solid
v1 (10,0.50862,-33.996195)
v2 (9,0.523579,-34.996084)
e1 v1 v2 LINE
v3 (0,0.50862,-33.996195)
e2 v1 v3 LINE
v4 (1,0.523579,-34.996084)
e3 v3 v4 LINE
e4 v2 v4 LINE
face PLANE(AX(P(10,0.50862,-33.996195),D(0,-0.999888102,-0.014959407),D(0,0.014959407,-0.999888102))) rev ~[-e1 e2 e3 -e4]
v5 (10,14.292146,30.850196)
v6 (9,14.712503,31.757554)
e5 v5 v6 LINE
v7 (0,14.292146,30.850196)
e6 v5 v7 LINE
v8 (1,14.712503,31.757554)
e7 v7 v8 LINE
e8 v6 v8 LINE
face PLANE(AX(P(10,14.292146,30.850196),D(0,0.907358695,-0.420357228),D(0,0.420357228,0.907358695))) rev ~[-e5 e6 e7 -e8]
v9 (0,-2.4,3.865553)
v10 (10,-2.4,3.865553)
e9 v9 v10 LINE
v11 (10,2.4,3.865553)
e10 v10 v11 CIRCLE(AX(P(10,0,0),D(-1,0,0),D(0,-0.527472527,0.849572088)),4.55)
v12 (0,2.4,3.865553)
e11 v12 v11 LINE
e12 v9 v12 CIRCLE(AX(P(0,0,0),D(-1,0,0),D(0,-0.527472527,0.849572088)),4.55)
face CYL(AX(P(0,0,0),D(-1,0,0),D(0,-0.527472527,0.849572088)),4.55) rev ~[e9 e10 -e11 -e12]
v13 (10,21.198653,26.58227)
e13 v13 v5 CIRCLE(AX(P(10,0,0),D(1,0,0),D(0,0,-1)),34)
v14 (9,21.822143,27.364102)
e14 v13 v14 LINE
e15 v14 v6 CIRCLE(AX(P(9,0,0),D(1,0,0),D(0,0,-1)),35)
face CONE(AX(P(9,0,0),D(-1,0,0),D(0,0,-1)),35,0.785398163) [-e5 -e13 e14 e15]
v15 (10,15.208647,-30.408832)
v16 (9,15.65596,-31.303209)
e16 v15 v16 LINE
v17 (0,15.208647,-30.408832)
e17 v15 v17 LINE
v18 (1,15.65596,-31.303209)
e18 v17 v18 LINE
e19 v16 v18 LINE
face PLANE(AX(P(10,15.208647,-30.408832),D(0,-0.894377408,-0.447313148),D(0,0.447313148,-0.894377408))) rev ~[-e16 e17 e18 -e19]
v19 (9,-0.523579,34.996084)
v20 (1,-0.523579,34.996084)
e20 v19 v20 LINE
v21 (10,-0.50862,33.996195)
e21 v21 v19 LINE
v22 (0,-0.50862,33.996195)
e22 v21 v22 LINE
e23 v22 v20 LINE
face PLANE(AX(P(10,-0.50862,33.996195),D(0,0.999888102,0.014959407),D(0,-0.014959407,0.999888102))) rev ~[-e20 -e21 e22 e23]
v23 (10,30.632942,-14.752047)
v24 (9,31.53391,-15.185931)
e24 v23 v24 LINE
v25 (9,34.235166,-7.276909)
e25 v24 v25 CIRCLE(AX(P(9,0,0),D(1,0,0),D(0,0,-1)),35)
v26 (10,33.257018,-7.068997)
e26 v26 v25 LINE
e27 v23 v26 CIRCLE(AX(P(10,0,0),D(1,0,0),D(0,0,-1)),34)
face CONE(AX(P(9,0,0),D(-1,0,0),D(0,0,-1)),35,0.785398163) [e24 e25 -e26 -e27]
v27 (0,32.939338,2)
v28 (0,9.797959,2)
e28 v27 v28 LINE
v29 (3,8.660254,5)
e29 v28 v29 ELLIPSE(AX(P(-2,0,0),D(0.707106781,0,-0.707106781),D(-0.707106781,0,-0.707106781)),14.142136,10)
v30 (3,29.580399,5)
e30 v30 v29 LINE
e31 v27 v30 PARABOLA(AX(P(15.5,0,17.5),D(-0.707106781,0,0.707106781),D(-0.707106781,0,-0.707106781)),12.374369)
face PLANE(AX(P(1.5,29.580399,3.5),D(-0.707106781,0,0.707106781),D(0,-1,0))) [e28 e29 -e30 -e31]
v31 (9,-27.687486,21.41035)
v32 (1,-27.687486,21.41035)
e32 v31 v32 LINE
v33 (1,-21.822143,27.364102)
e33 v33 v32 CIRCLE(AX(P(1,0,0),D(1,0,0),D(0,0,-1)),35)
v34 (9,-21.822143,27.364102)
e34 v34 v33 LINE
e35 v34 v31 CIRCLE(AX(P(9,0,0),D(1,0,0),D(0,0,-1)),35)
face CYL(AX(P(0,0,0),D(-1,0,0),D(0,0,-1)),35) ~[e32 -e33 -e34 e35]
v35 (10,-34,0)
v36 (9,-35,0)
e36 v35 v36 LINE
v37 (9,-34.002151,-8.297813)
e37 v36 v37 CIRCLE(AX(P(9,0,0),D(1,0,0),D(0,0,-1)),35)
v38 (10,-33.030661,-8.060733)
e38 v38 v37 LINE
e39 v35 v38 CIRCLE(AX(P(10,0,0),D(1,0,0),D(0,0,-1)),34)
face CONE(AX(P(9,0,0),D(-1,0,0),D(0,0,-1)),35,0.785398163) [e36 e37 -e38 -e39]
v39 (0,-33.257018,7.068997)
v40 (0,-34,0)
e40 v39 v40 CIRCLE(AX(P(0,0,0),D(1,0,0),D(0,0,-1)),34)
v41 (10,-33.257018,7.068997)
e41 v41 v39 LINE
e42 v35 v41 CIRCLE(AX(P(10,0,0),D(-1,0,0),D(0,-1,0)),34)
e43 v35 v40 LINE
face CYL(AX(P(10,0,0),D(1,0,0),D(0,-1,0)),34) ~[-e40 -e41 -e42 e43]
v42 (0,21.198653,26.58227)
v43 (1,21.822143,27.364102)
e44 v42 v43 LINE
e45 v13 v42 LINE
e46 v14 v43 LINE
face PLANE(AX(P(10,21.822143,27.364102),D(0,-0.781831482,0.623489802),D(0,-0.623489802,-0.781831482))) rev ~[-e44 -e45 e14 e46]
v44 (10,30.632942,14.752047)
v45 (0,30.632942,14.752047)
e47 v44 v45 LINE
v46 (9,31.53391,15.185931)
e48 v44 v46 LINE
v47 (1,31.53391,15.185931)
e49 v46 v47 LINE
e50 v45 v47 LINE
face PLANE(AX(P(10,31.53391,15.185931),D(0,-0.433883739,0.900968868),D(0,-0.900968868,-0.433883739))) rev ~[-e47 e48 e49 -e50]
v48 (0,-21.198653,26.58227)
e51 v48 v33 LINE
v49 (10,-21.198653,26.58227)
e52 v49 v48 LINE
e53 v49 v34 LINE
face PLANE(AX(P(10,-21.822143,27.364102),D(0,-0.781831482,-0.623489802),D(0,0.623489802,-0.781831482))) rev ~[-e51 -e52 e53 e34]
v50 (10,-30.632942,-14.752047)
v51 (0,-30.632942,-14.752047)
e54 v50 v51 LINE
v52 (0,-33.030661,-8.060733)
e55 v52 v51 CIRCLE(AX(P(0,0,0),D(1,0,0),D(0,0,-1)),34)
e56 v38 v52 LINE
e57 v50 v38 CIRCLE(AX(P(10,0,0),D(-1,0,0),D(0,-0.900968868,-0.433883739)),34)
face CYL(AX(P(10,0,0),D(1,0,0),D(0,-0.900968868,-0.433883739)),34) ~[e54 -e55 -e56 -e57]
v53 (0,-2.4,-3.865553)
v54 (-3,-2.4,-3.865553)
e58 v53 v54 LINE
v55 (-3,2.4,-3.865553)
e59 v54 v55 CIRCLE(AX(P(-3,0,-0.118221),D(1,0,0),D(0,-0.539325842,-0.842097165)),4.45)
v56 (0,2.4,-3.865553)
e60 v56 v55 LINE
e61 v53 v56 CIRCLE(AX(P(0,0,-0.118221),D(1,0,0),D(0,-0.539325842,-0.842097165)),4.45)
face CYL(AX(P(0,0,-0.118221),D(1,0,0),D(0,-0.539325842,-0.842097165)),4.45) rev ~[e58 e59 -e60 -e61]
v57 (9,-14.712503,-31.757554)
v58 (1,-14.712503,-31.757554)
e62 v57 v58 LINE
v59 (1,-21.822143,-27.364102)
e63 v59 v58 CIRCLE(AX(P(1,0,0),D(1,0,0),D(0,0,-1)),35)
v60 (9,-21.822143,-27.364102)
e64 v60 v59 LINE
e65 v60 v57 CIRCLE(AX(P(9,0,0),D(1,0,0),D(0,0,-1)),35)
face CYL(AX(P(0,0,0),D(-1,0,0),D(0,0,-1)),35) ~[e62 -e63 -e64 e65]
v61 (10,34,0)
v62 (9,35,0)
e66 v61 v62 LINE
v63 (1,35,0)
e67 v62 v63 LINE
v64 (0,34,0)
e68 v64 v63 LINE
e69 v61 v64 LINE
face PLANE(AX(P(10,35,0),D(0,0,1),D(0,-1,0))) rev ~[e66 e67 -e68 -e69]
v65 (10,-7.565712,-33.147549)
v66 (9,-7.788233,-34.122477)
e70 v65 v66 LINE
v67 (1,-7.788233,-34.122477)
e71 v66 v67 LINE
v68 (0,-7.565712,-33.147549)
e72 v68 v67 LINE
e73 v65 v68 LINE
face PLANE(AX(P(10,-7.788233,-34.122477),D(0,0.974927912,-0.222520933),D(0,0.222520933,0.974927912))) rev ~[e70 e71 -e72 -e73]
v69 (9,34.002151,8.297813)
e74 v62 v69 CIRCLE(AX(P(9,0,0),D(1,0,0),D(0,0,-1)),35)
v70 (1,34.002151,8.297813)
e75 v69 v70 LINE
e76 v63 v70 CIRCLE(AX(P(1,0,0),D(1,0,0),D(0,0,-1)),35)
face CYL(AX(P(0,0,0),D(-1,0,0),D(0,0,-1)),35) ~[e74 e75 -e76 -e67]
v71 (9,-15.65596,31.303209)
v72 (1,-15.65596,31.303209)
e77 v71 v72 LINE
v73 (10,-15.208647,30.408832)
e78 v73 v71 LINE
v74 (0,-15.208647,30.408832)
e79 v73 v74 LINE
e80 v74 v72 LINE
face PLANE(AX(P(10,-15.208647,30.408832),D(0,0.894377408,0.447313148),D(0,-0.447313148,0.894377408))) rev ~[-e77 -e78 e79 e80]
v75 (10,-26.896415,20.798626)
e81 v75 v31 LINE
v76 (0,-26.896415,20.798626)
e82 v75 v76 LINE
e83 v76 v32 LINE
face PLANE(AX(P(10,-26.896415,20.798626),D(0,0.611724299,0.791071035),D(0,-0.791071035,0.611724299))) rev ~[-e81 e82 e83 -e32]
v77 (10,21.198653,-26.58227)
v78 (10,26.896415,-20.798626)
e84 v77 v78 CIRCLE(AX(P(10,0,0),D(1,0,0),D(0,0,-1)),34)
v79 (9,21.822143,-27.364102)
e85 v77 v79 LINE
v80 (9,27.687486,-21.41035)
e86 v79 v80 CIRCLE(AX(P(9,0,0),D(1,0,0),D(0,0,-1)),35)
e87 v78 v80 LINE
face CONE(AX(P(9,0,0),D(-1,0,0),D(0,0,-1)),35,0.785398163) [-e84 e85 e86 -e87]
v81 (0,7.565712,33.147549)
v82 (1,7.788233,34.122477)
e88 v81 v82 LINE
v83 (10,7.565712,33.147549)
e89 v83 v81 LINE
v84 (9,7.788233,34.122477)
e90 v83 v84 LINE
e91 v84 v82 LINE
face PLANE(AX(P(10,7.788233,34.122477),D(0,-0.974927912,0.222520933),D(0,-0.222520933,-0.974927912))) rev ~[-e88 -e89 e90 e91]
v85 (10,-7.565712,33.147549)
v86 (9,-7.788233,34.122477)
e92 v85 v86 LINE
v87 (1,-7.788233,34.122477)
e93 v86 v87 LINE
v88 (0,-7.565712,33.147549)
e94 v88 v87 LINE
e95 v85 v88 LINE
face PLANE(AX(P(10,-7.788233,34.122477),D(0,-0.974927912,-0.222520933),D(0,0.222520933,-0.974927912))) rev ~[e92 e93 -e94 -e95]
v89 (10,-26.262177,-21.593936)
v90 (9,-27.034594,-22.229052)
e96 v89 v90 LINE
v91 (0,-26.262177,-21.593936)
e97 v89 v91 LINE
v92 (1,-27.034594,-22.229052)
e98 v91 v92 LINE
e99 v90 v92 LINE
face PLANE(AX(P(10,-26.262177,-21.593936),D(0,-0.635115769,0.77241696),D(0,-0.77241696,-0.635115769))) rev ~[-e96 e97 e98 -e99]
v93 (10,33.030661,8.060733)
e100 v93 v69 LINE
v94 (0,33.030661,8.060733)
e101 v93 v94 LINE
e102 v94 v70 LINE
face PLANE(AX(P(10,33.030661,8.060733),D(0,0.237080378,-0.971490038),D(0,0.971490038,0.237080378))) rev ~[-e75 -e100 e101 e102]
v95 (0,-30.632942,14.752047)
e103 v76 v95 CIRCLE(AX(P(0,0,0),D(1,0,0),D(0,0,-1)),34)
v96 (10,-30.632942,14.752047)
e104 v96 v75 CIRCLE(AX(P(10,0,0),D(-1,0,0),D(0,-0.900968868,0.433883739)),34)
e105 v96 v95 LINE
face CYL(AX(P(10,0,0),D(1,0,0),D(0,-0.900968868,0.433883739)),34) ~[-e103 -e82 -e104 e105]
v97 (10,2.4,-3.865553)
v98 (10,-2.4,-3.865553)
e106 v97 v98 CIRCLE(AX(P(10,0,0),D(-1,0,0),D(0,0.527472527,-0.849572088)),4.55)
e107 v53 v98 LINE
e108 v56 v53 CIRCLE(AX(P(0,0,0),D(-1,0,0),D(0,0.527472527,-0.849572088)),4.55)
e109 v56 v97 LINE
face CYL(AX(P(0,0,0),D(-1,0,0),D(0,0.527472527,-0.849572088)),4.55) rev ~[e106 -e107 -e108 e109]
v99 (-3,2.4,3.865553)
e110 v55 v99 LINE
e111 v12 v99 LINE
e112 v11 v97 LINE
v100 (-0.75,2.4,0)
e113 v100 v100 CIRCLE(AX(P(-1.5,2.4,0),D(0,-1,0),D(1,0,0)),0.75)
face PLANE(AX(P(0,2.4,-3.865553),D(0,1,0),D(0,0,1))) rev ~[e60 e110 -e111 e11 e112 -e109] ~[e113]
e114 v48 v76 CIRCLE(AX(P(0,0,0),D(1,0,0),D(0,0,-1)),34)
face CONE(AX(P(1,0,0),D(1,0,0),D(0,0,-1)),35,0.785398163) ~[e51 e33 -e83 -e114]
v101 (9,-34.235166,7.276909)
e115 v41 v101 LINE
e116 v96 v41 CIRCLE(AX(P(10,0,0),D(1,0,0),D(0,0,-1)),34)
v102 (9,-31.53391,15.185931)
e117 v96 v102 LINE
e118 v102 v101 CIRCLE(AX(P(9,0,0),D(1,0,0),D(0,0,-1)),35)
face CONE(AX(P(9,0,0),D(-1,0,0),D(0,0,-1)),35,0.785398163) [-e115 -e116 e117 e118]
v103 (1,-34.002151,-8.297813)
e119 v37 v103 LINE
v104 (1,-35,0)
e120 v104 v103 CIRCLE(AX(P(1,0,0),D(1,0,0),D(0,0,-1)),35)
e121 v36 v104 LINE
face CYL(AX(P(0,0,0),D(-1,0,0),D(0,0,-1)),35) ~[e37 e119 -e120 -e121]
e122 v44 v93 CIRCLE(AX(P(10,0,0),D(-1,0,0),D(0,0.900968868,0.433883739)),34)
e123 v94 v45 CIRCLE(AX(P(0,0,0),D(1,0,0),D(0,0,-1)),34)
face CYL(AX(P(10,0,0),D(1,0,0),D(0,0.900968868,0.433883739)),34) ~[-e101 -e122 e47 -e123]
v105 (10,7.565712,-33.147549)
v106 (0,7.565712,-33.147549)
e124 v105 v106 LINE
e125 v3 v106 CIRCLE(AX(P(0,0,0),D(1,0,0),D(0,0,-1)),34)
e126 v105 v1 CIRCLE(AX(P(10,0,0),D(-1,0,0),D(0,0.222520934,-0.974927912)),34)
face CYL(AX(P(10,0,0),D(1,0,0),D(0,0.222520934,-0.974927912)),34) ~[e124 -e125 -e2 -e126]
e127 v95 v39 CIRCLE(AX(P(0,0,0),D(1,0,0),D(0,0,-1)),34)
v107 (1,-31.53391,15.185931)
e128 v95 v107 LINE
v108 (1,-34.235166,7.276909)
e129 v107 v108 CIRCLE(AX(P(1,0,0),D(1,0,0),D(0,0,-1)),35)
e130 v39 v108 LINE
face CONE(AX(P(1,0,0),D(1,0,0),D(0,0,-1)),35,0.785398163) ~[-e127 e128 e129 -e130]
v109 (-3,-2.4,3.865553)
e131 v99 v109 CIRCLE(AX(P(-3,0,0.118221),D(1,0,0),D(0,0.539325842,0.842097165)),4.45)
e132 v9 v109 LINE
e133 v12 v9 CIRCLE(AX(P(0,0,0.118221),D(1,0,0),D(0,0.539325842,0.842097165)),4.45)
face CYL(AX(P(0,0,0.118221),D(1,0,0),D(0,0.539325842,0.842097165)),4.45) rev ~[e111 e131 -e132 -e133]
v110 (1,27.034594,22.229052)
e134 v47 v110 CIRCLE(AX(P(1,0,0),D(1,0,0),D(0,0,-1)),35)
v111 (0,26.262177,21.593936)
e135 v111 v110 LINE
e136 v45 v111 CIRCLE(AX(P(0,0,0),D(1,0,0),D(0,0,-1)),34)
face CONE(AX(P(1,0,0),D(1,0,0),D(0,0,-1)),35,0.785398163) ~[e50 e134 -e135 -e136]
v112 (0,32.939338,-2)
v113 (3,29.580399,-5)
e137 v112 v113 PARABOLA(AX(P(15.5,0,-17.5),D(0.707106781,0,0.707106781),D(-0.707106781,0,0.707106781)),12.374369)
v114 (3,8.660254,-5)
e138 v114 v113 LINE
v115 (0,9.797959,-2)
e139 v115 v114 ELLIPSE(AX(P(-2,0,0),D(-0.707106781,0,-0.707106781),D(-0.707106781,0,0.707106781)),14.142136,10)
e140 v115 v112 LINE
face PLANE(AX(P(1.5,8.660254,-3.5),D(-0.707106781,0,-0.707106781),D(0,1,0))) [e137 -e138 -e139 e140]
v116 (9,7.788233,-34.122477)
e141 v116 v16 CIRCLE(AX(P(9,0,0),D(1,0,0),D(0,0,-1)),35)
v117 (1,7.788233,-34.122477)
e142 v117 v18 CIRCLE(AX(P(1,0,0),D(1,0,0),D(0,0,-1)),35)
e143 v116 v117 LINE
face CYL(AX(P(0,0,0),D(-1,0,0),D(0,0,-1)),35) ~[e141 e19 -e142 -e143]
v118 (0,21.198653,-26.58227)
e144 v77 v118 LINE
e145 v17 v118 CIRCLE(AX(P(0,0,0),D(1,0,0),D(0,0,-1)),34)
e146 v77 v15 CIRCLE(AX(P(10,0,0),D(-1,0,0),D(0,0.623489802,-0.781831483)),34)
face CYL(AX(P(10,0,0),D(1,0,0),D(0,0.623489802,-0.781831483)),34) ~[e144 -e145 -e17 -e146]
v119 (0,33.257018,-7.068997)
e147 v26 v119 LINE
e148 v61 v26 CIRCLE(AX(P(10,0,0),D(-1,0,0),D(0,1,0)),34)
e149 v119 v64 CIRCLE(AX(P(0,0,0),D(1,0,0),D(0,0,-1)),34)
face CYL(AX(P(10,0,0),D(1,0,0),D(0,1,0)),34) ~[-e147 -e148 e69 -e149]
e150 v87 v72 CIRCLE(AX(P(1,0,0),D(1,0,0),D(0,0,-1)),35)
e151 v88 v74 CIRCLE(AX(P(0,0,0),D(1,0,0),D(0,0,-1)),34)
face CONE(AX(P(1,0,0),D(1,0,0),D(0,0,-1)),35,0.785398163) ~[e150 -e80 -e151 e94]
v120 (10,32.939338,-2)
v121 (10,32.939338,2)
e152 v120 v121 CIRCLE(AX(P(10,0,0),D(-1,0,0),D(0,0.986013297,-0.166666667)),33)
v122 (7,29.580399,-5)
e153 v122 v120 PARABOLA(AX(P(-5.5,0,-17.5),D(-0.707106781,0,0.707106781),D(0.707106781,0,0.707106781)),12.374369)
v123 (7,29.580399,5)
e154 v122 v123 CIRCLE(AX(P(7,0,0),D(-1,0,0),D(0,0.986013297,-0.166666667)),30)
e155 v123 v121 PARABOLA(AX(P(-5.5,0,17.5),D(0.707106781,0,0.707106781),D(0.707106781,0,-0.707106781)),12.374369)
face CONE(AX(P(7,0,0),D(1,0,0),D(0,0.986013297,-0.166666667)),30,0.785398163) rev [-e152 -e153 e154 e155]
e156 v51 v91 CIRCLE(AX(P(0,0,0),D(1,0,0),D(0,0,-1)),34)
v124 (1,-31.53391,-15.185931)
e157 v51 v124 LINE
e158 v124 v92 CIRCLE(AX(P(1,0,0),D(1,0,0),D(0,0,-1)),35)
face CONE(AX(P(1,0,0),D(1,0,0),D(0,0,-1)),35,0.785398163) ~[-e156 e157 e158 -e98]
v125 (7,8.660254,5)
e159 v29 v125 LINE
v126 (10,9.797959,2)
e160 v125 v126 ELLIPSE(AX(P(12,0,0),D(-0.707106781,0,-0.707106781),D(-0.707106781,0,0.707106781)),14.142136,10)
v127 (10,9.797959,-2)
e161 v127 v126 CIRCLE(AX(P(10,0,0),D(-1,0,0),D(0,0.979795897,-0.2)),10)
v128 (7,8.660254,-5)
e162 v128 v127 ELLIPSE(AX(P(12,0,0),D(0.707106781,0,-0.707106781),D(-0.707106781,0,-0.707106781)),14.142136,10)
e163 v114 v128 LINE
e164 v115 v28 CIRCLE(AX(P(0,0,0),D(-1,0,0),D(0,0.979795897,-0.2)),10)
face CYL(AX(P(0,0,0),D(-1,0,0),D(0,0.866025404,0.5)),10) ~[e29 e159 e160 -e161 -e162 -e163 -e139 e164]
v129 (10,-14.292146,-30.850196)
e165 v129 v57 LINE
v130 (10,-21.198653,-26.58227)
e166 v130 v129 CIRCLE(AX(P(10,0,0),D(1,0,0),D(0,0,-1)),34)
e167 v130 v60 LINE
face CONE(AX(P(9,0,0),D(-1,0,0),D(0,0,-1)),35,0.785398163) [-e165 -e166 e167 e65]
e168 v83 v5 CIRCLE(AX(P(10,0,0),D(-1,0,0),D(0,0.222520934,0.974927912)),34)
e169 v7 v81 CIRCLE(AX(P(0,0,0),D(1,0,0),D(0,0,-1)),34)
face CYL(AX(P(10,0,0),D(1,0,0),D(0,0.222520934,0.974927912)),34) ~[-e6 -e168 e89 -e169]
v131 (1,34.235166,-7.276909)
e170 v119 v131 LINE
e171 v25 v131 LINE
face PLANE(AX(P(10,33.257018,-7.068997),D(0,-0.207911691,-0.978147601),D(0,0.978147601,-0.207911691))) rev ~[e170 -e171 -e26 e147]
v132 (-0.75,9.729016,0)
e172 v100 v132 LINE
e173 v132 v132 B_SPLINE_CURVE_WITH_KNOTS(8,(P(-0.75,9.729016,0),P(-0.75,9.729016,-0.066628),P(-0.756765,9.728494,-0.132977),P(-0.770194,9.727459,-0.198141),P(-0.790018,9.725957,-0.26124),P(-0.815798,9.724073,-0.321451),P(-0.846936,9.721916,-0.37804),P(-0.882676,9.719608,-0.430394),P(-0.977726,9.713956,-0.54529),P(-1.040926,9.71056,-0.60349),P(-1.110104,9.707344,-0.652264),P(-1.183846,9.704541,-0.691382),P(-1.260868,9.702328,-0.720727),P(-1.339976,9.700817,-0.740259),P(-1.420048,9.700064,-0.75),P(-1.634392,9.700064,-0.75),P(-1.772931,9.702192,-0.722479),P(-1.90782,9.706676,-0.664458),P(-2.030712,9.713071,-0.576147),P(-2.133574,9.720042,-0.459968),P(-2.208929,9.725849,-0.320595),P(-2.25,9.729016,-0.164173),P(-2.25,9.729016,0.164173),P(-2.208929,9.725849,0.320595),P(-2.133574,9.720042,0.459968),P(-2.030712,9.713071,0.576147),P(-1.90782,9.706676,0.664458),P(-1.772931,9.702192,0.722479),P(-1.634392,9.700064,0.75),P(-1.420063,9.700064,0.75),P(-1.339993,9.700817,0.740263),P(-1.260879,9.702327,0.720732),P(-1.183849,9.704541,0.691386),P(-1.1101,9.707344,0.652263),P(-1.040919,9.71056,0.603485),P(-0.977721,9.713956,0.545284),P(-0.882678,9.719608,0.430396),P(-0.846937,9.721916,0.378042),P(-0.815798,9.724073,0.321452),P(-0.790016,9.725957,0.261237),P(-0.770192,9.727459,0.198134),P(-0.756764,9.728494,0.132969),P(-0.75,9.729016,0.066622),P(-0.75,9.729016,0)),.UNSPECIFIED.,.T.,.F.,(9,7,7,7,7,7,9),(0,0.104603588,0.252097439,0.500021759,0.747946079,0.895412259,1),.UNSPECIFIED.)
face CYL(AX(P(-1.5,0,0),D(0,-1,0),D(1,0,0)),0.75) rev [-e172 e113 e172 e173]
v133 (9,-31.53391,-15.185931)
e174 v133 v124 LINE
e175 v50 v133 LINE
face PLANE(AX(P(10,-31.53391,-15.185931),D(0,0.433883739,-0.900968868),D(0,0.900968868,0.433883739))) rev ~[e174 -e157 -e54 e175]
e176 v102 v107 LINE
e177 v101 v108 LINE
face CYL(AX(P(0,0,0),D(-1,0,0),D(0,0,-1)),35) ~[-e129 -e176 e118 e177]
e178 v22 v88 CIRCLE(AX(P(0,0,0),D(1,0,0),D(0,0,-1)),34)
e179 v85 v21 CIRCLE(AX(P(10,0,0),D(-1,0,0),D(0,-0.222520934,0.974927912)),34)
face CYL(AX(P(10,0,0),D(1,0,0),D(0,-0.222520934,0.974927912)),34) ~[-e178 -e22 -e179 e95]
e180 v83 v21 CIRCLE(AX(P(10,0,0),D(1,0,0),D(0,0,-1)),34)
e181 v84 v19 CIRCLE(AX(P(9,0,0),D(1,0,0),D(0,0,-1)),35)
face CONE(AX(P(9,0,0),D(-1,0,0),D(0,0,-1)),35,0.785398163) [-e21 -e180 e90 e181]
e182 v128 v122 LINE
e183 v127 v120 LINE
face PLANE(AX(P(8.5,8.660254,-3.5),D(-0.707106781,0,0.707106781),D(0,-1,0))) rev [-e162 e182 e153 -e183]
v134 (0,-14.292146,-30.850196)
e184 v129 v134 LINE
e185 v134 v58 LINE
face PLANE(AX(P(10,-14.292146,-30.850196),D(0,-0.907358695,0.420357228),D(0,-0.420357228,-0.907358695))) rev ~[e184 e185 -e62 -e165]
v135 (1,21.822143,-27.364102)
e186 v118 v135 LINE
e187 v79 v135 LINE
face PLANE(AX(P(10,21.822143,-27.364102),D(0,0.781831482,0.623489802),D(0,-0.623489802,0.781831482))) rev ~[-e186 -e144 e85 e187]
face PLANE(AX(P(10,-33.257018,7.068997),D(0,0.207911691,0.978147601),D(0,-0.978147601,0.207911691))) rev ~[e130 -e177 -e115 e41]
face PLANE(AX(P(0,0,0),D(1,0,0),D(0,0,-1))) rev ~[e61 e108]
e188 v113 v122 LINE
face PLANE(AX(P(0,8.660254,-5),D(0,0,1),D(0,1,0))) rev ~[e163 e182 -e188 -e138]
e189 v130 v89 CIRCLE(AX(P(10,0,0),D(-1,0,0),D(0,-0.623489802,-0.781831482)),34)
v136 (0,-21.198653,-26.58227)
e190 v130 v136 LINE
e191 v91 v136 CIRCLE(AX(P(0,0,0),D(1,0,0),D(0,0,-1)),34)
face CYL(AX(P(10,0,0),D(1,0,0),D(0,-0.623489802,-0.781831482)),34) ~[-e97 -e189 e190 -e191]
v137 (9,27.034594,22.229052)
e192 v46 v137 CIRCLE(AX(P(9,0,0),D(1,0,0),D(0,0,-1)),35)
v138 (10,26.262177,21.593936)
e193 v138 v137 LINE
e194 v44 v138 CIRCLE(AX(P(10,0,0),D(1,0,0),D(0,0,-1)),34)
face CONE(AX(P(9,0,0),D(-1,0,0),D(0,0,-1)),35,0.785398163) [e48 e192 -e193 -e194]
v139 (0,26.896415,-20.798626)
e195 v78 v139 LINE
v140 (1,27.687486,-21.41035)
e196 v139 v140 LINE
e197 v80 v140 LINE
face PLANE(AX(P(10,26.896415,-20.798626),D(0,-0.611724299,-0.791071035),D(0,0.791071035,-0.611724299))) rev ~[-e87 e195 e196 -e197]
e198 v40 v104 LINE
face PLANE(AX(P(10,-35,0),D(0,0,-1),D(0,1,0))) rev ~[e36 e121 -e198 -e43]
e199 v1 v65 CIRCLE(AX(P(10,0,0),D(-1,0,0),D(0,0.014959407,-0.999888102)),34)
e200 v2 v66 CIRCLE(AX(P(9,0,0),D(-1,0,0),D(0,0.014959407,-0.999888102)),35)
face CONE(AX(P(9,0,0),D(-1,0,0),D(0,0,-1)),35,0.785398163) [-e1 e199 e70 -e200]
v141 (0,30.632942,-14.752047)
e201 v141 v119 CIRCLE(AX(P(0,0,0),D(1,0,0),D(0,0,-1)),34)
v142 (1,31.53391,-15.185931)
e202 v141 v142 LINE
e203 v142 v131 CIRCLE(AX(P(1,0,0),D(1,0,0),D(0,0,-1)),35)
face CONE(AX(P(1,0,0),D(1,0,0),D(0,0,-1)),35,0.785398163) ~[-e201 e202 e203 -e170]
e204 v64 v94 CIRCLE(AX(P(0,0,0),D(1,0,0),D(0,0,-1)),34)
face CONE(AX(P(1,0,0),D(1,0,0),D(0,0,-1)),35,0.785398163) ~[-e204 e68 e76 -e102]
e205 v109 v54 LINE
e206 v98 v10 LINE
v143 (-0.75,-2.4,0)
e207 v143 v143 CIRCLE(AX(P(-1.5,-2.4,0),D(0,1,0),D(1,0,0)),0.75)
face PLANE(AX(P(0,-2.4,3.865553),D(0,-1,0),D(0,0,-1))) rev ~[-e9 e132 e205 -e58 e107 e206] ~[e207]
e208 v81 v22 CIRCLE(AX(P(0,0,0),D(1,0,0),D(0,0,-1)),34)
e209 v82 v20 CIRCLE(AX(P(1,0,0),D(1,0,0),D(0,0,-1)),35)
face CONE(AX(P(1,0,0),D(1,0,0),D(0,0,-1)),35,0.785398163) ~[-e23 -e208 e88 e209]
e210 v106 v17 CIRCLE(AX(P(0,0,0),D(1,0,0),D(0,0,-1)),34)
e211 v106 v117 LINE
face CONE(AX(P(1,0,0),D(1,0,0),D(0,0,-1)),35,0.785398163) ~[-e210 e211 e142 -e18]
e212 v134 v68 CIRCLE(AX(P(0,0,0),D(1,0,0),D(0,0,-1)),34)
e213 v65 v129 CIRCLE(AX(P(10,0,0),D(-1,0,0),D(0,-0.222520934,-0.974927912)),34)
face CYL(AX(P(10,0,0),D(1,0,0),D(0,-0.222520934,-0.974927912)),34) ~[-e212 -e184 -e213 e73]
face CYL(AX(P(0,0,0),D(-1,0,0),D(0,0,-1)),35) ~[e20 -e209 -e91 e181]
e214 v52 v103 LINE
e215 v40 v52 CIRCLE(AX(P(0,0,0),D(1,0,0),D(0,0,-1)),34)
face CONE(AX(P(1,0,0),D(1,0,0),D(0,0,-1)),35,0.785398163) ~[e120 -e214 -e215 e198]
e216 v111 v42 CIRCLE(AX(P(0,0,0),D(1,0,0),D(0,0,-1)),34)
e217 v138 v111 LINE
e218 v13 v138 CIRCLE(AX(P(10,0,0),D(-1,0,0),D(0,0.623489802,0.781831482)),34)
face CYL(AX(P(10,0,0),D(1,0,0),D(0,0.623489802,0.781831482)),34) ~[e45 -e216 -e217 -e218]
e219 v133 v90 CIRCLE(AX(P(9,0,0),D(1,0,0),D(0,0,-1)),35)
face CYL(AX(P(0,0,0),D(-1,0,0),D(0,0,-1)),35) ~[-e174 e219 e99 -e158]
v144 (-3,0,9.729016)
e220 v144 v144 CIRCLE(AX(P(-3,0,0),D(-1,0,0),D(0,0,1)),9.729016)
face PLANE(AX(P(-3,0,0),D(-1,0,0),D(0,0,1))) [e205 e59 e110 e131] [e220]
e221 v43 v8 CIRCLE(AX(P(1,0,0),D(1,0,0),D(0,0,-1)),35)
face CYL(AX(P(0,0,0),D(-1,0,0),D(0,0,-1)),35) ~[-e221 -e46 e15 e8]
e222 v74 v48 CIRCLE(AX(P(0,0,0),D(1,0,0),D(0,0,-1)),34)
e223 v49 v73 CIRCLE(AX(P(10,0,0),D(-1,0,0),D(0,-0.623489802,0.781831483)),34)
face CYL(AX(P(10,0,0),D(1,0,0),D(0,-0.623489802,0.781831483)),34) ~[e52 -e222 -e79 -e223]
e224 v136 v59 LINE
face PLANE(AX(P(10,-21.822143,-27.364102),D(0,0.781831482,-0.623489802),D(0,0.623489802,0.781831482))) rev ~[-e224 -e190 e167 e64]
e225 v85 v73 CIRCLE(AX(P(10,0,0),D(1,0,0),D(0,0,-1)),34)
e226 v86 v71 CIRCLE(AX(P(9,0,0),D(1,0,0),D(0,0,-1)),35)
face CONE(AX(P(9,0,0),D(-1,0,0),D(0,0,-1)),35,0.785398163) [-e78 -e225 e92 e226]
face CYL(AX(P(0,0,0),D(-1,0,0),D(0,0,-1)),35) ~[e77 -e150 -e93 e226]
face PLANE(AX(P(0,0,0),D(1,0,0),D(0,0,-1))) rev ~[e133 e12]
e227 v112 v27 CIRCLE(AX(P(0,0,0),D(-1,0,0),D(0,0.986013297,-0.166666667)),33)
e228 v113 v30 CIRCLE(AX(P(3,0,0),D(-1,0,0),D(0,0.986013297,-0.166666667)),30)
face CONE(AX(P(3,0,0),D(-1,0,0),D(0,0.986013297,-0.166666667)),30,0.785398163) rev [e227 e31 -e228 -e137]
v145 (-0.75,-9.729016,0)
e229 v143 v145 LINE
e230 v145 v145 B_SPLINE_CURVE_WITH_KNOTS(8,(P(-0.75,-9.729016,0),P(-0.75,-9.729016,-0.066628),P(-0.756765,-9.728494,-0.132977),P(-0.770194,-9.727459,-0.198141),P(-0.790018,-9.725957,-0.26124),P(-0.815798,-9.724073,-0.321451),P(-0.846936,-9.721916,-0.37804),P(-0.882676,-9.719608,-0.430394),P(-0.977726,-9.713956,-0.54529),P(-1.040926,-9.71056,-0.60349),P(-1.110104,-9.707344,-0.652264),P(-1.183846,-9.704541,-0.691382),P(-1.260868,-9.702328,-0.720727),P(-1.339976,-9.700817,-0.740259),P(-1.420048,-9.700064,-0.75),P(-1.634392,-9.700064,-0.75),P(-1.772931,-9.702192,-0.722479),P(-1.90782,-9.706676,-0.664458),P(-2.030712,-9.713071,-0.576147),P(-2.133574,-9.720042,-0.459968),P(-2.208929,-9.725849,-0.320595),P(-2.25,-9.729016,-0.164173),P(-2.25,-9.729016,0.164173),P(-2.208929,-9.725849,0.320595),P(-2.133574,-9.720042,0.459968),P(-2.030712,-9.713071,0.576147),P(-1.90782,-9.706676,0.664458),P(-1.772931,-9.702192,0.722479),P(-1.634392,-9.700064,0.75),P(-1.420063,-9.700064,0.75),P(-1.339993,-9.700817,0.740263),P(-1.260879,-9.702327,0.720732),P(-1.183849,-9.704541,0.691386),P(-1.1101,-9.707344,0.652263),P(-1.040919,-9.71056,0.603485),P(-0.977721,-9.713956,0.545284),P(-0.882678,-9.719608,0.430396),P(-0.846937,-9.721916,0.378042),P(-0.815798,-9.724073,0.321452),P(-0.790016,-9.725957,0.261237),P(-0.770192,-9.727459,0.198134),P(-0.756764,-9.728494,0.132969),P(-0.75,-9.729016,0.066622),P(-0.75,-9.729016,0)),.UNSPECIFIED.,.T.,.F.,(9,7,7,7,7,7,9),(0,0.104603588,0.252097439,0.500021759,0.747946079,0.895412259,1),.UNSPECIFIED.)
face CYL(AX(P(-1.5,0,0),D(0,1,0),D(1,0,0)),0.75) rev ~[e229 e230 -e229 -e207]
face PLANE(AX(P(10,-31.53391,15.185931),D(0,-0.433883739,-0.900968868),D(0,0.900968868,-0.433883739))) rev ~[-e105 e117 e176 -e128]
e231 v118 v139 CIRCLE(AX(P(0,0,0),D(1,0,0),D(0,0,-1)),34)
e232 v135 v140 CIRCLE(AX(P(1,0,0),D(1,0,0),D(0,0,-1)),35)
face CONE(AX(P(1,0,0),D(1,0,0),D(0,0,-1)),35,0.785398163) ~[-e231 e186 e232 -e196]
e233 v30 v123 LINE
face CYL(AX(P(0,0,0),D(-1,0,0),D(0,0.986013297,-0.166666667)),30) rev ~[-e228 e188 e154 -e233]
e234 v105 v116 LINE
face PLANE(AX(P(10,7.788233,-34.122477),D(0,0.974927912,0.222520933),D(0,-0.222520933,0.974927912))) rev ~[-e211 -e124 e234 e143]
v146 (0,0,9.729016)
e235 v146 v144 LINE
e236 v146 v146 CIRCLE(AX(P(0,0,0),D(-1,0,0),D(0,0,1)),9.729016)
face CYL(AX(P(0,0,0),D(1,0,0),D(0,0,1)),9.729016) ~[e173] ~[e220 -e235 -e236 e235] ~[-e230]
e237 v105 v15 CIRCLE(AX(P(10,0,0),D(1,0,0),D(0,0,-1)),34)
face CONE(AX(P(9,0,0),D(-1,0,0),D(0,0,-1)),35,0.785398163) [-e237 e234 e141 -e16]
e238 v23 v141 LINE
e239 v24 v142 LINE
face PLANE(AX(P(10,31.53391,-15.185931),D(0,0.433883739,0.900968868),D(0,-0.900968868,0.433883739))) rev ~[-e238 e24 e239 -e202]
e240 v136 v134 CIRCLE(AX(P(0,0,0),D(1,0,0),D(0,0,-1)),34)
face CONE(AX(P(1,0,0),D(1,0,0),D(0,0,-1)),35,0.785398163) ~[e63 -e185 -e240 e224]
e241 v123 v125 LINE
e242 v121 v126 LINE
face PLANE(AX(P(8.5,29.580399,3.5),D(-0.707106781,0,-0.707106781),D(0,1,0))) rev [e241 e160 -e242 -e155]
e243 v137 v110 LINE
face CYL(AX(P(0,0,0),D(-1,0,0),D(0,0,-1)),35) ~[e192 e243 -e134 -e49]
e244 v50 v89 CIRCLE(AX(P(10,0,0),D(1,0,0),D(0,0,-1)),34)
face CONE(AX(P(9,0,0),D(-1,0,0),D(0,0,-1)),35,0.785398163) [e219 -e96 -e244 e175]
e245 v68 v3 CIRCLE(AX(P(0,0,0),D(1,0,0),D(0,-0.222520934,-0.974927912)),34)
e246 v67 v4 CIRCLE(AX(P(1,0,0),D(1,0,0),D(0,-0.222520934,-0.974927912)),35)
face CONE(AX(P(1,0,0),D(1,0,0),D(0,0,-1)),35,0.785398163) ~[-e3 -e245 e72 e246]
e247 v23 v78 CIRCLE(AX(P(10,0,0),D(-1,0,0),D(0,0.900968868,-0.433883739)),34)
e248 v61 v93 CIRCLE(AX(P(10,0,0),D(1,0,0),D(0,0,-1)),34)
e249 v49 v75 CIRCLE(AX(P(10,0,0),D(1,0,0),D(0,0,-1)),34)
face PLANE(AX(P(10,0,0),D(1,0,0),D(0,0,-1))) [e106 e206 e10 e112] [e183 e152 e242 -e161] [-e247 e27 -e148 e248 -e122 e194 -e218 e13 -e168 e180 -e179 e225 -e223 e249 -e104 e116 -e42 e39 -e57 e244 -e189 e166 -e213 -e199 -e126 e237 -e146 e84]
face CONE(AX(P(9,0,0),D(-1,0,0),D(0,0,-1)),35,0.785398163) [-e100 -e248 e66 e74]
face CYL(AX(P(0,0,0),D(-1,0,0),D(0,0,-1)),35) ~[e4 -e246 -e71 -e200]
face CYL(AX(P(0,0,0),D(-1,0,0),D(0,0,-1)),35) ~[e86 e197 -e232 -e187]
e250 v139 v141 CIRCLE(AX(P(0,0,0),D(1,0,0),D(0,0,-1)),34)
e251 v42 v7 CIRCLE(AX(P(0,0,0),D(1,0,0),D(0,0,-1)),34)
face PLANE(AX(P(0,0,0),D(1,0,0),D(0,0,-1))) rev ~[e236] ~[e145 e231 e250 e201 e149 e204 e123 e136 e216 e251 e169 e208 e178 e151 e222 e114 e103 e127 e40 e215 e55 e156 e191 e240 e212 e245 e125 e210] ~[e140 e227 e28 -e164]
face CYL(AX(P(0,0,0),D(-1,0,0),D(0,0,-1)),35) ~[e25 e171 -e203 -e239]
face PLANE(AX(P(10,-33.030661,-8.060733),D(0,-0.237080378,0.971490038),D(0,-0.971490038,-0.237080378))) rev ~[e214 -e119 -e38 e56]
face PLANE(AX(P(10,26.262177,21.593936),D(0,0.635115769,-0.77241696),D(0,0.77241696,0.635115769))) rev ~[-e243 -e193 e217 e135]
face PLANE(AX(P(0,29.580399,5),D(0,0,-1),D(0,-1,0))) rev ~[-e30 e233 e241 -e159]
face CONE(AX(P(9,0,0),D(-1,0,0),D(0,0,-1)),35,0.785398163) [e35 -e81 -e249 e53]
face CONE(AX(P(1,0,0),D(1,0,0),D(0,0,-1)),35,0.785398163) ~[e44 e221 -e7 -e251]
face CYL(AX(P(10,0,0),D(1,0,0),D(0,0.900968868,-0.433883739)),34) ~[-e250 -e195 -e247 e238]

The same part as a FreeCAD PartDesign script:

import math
import FreeCAD as App
import Part
import Sketcher
from FreeCAD import Vector
Q = App.Units.Quantity


def edges_at(feature, points):
    """Names of the edges that pass closest to the given points."""
    edges = feature.Shape.Edges
    near = lambda p: min(range(len(edges)), key=lambda i: edges[i].distToShape(Part.Vertex(*p))[0])
    return sorted({f"Edge{near(p) + 1}" for p in points})

doc = App.newDocument("Part")
body = doc.addObject("PartDesign::Body", "Body")

# Sketch on YZ plane
sketch1 = body.newObject("Sketcher::SketchObject", "Sketch")
sketch1.AttachmentSupport = (doc.getObject("YZ_Plane"), [""])
sketch1.MapMode = "FlatFace"
sketch1.addGeometry([
    Part.Circle(Vector(0, 0, 0), Vector(0, 0, 1), 35),  # 0
    Part.ArcOfCircle(Part.Circle(Vector(0, 0, 0), Vector(0, 0, 1), 30), math.radians(10), math.radians(350)),  # 1
    Part.LineSegment(Vector(30, 5, 0), Vector(9, 5, 0)),  # 2
    Part.ArcOfCircle(Part.Circle(Vector(0, 0, 0), Vector(0, 0, 1), 10), math.radians(30), math.radians(330)),  # 3
    Part.LineSegment(Vector(9, -5, 0), Vector(30, -5, 0)),  # 4
], False)
sketch1.addConstraint([
    Sketcher.Constraint("Coincident", 1, 1, 2, 1),
    Sketcher.Constraint("Coincident", 2, 2, 3, 1),
    Sketcher.Constraint("Coincident", 3, 2, 4, 1),
    Sketcher.Constraint("Coincident", 4, 2, 1, 2),
    Sketcher.Constraint("Horizontal", 2),
    Sketcher.Constraint("Horizontal", 4),
    Sketcher.Constraint("Coincident", 0, 3, -1, 1),
    Sketcher.Constraint("Coincident", 1, 3, -1, 1),
    Sketcher.Constraint("Coincident", 3, 3, -1, 1),
    Sketcher.Constraint("Vertical", 2, 2, 3, 2),
    Sketcher.Constraint("Diameter", 0, Q("70 mm")),
    Sketcher.Constraint("Radius", 1, Q("30 mm")),
    Sketcher.Constraint("Radius", 3, Q("10 mm")),
    Sketcher.Constraint("DistanceY", -1, 1, 1, 1, Q("5 mm")),
])
pad1 = body.newObject("PartDesign::Pad", "Pad")
pad1.Profile = sketch1
pad1.Length = 10
doc.recompute()

chamfer = body.newObject("PartDesign::Chamfer", "Chamfer")
chamfer.Base = (pad1, edges_at(pad1, [(0, 0, 35), (10, 0, 35)]))
chamfer.Size = 1

# Sketch on YZ plane
sketch2 = body.newObject("Sketcher::SketchObject", "Sketch001")
sketch2.AttachmentSupport = (doc.getObject("YZ_Plane"), [""])
sketch2.MapMode = "FlatFace"
sketch2.AttachmentOffset = App.Placement(Vector(0, 0, 10), App.Rotation())
sketch2.addGeometry([
    Part.LineSegment(Vector(35, 0, 0), Vector(34, 0, 0)),  # 0
    Part.ArcOfCircle(Part.Circle(Vector(0, 0, 0), Vector(0, 0, 1), 34), math.radians(-12), math.radians(0)),  # 1
    Part.LineSegment(Vector(33.3, -7.1, 0), Vector(34.2, -7.3, 0)),  # 2
    Part.ArcOfCircle(Part.Circle(Vector(0, 0, 0), Vector(0, 0, 1), 35), math.radians(-12), math.radians(0)),  # 3
    Part.LineSegment(Vector(31.5, -15.2, 0), Vector(30.6, -14.8, 0)),  # 4
    Part.ArcOfCircle(Part.Circle(Vector(0, 0, 0), Vector(0, 0, 1), 34), math.radians(-37.71), math.radians(-25.71)),  # 5
    Part.LineSegment(Vector(26.9, -20.8, 0), Vector(27.7, -21.4, 0)),  # 6
    Part.ArcOfCircle(Part.Circle(Vector(0, 0, 0), Vector(0, 0, 1), 35), math.radians(-37.71), math.radians(-25.71)),  # 7
    Part.LineSegment(Vector(21.8, -27.4, 0), Vector(21.2, -26.6, 0)),  # 8
    Part.ArcOfCircle(Part.Circle(Vector(0, 0, 0), Vector(0, 0, 1), 34), math.radians(-63.43), math.radians(-51.43)),  # 9
    Part.LineSegment(Vector(15.2, -30.4, 0), Vector(15.7, -31.3, 0)),  # 10
    Part.ArcOfCircle(Part.Circle(Vector(0, 0, 0), Vector(0, 0, 1), 35), math.radians(-63.43), math.radians(-51.43)),  # 11
    Part.LineSegment(Vector(7.8, -34.1, 0), Vector(7.6, -33.1, 0)),  # 12
    Part.ArcOfCircle(Part.Circle(Vector(0, 0, 0), Vector(0, 0, 1), 34), math.radians(-89.14), math.radians(-77.14)),  # 13
    Part.LineSegment(Vector(0.5, -34, 0), Vector(0.5, -35, 0)),  # 14
    Part.ArcOfCircle(Part.Circle(Vector(0, 0, 0), Vector(0, 0, 1), 35), math.radians(-89.14), math.radians(-77.14)),  # 15
    Part.LineSegment(Vector(-7.8, -34.1, 0), Vector(-7.6, -33.1, 0)),  # 16
    Part.ArcOfCircle(Part.Circle(Vector(0, 0, 0), Vector(0, 0, 1), 34), math.radians(-114.86), math.radians(-102.86)),  # 17
    Part.LineSegment(Vector(-14.3, -30.9, 0), Vector(-14.7, -31.8, 0)),  # 18
    Part.ArcOfCircle(Part.Circle(Vector(0, 0, 0), Vector(0, 0, 1), 35), math.radians(-114.86), math.radians(-102.86)),  # 19
    Part.LineSegment(Vector(-21.8, -27.4, 0), Vector(-21.2, -26.6, 0)),  # 20
    Part.ArcOfCircle(Part.Circle(Vector(0, 0, 0), Vector(0, 0, 1), 34), math.radians(-140.57), math.radians(-128.57)),  # 21
    Part.LineSegment(Vector(-26.3, -21.6, 0), Vector(-27, -22.2, 0)),  # 22
    Part.ArcOfCircle(Part.Circle(Vector(0, 0, 0), Vector(0, 0, 1), 35), math.radians(-140.57), math.radians(-128.57)),  # 23
    Part.LineSegment(Vector(-31.5, -15.2, 0), Vector(-30.6, -14.8, 0)),  # 24
    Part.ArcOfCircle(Part.Circle(Vector(0, 0, 0), Vector(0, 0, 1), 34), math.radians(-166.29), math.radians(-154.29)),  # 25
    Part.LineSegment(Vector(-33, -8.1, 0), Vector(-34, -8.3, 0)),  # 26
    Part.ArcOfCircle(Part.Circle(Vector(0, 0, 0), Vector(0, 0, 1), 35), math.radians(-166.29), math.radians(-154.29)),  # 27
    Part.LineSegment(Vector(-35, 0, 0), Vector(-34, 0, 0)),  # 28
    Part.ArcOfCircle(Part.Circle(Vector(0, 0, 0), Vector(0, 0, 1), 34), math.radians(168), math.radians(180)),  # 29
    Part.LineSegment(Vector(-33.3, 7.1, 0), Vector(-34.2, 7.3, 0)),  # 30
    Part.ArcOfCircle(Part.Circle(Vector(0, 0, 0), Vector(0, 0, 1), 35), math.radians(168), math.radians(180)),  # 31
    Part.LineSegment(Vector(-31.5, 15.2, 0), Vector(-30.6, 14.8, 0)),  # 32
    Part.ArcOfCircle(Part.Circle(Vector(0, 0, 0), Vector(0, 0, 1), 34), math.radians(142.29), math.radians(154.29)),  # 33
    Part.LineSegment(Vector(-26.9, 20.8, 0), Vector(-27.7, 21.4, 0)),  # 34
    Part.ArcOfCircle(Part.Circle(Vector(0, 0, 0), Vector(0, 0, 1), 35), math.radians(142.29), math.radians(154.29)),  # 35
    Part.LineSegment(Vector(-21.8, 27.4, 0), Vector(-21.2, 26.6, 0)),  # 36
    Part.ArcOfCircle(Part.Circle(Vector(0, 0, 0), Vector(0, 0, 1), 34), math.radians(116.57), math.radians(128.57)),  # 37
    Part.LineSegment(Vector(-15.2, 30.4, 0), Vector(-15.7, 31.3, 0)),  # 38
    Part.ArcOfCircle(Part.Circle(Vector(0, 0, 0), Vector(0, 0, 1), 35), math.radians(116.57), math.radians(128.57)),  # 39
    Part.LineSegment(Vector(-7.8, 34.1, 0), Vector(-7.6, 33.1, 0)),  # 40
    Part.ArcOfCircle(Part.Circle(Vector(0, 0, 0), Vector(0, 0, 1), 34), math.radians(90.86), math.radians(102.86)),  # 41
    Part.LineSegment(Vector(-0.5, 34, 0), Vector(-0.5, 35, 0)),  # 42
    Part.ArcOfCircle(Part.Circle(Vector(0, 0, 0), Vector(0, 0, 1), 35), math.radians(90.86), math.radians(102.86)),  # 43
    Part.LineSegment(Vector(7.8, 34.1, 0), Vector(7.6, 33.1, 0)),  # 44
    Part.ArcOfCircle(Part.Circle(Vector(0, 0, 0), Vector(0, 0, 1), 34), math.radians(65.14), math.radians(77.14)),  # 45
    Part.LineSegment(Vector(14.3, 30.9, 0), Vector(14.7, 31.8, 0)),  # 46
    Part.ArcOfCircle(Part.Circle(Vector(0, 0, 0), Vector(0, 0, 1), 35), math.radians(65.14), math.radians(77.14)),  # 47
    Part.LineSegment(Vector(21.8, 27.4, 0), Vector(21.2, 26.6, 0)),  # 48
    Part.ArcOfCircle(Part.Circle(Vector(0, 0, 0), Vector(0, 0, 1), 34), math.radians(39.43), math.radians(51.43)),  # 49
    Part.LineSegment(Vector(26.3, 21.6, 0), Vector(27, 22.2, 0)),  # 50
    Part.ArcOfCircle(Part.Circle(Vector(0, 0, 0), Vector(0, 0, 1), 35), math.radians(39.43), math.radians(51.43)),  # 51
    Part.LineSegment(Vector(31.5, 15.2, 0), Vector(30.6, 14.8, 0)),  # 52
    Part.ArcOfCircle(Part.Circle(Vector(0, 0, 0), Vector(0, 0, 1), 34), math.radians(13.71), math.radians(25.71)),  # 53
    Part.LineSegment(Vector(33, 8.1, 0), Vector(34, 8.3, 0)),  # 54
    Part.ArcOfCircle(Part.Circle(Vector(0, 0, 0), Vector(0, 0, 1), 35), math.radians(13.71), math.radians(25.71)),  # 55
], False)
sketch2.addConstraint([
    Sketcher.Constraint("Coincident", 0, 2, 1, 2),
    Sketcher.Constraint("Coincident", 1, 1, 2, 1),
    Sketcher.Constraint("Coincident", 2, 2, 3, 1),
    Sketcher.Constraint("Coincident", 3, 2, 0, 1),
    Sketcher.Constraint("Coincident", 4, 2, 5, 2),
    Sketcher.Constraint("Coincident", 5, 1, 6, 1),
    Sketcher.Constraint("Coincident", 6, 2, 7, 1),
    Sketcher.Constraint("Coincident", 7, 2, 4, 1),
    Sketcher.Constraint("Coincident", 8, 2, 9, 2),
    Sketcher.Constraint("Coincident", 9, 1, 10, 1),
    Sketcher.Constraint("Coincident", 10, 2, 11, 1),
    Sketcher.Constraint("Coincident", 11, 2, 8, 1),
    Sketcher.Constraint("Coincident", 12, 2, 13, 2),
    Sketcher.Constraint("Coincident", 13, 1, 14, 1),
    Sketcher.Constraint("Coincident", 14, 2, 15, 1),
    Sketcher.Constraint("Coincident", 15, 2, 12, 1),
    Sketcher.Constraint("Coincident", 16, 2, 17, 2),
    Sketcher.Constraint("Coincident", 17, 1, 18, 1),
    Sketcher.Constraint("Coincident", 18, 2, 19, 1),
    Sketcher.Constraint("Coincident", 19, 2, 16, 1),
    Sketcher.Constraint("Coincident", 20, 2, 21, 2),
    Sketcher.Constraint("Coincident", 21, 1, 22, 1),
    Sketcher.Constraint("Coincident", 22, 2, 23, 1),
    Sketcher.Constraint("Coincident", 23, 2, 20, 1),
    Sketcher.Constraint("Coincident", 24, 2, 25, 2),
    Sketcher.Constraint("Coincident", 25, 1, 26, 1),
    Sketcher.Constraint("Coincident", 26, 2, 27, 1),
    Sketcher.Constraint("Coincident", 27, 2, 24, 1),
    Sketcher.Constraint("Coincident", 28, 2, 29, 2),
    Sketcher.Constraint("Coincident", 29, 1, 30, 1),
    Sketcher.Constraint("Coincident", 30, 2, 31, 1),
    Sketcher.Constraint("Coincident", 31, 2, 28, 1),
    Sketcher.Constraint("Coincident", 32, 2, 33, 2),
    Sketcher.Constraint("Coincident", 33, 1, 34, 1),
    Sketcher.Constraint("Coincident", 34, 2, 35, 1),
    Sketcher.Constraint("Coincident", 35, 2, 32, 1),
    Sketcher.Constraint("Coincident", 36, 2, 37, 2),
    Sketcher.Constraint("Coincident", 37, 1, 38, 1),
    Sketcher.Constraint("Coincident", 38, 2, 39, 1),
    Sketcher.Constraint("Coincident", 39, 2, 36, 1),
    Sketcher.Constraint("Coincident", 40, 2, 41, 2),
    Sketcher.Constraint("Coincident", 41, 1, 42, 1),
    Sketcher.Constraint("Coincident", 42, 2, 43, 1),
    Sketcher.Constraint("Coincident", 43, 2, 40, 1),
    Sketcher.Constraint("Coincident", 44, 2, 45, 2),
    Sketcher.Constraint("Coincident", 45, 1, 46, 1),
    Sketcher.Constraint("Coincident", 46, 2, 47, 1),
    Sketcher.Constraint("Coincident", 47, 2, 44, 1),
    Sketcher.Constraint("Coincident", 48, 2, 49, 2),
    Sketcher.Constraint("Coincident", 49, 1, 50, 1),
    Sketcher.Constraint("Coincident", 50, 2, 51, 1),
    Sketcher.Constraint("Coincident", 51, 2, 48, 1),
    Sketcher.Constraint("Coincident", 52, 2, 53, 2),
    Sketcher.Constraint("Coincident", 53, 1, 54, 1),
    Sketcher.Constraint("Coincident", 54, 2, 55, 1),
    Sketcher.Constraint("Coincident", 55, 2, 52, 1),
    Sketcher.Constraint("Horizontal", 0),
    Sketcher.Constraint("Horizontal", 28),
    Sketcher.Constraint("Coincident", 1, 3, -1, 1),
    Sketcher.Constraint("Coincident", 3, 3, -1, 1),
    Sketcher.Constraint("Coincident", 5, 3, -1, 1),
    Sketcher.Constraint("Coincident", 7, 3, -1, 1),
    Sketcher.Constraint("Coincident", 9, 3, -1, 1),
    Sketcher.Constraint("Coincident", 11, 3, -1, 1),
    Sketcher.Constraint("Coincident", 13, 3, -1, 1),
    Sketcher.Constraint("Coincident", 15, 3, -1, 1),
    Sketcher.Constraint("Coincident", 17, 3, -1, 1),
    Sketcher.Constraint("Coincident", 19, 3, -1, 1),
    Sketcher.Constraint("Coincident", 21, 3, -1, 1),
    Sketcher.Constraint("Coincident", 23, 3, -1, 1),
    Sketcher.Constraint("Coincident", 25, 3, -1, 1),
    Sketcher.Constraint("Coincident", 27, 3, -1, 1),
    Sketcher.Constraint("Coincident", 29, 3, -1, 1),
    Sketcher.Constraint("Coincident", 31, 3, -1, 1),
    Sketcher.Constraint("Coincident", 33, 3, -1, 1),
    Sketcher.Constraint("Coincident", 35, 3, -1, 1),
    Sketcher.Constraint("Coincident", 37, 3, -1, 1),
    Sketcher.Constraint("Coincident", 39, 3, -1, 1),
    Sketcher.Constraint("Coincident", 41, 3, -1, 1),
    Sketcher.Constraint("Coincident", 43, 3, -1, 1),
    Sketcher.Constraint("Coincident", 45, 3, -1, 1),
    Sketcher.Constraint("Coincident", 47, 3, -1, 1),
    Sketcher.Constraint("Coincident", 49, 3, -1, 1),
    Sketcher.Constraint("Coincident", 51, 3, -1, 1),
    Sketcher.Constraint("Coincident", 53, 3, -1, 1),
    Sketcher.Constraint("Coincident", 55, 3, -1, 1),
    Sketcher.Constraint("Equal", 1, 5),
    Sketcher.Constraint("Equal", 3, 7),
    Sketcher.Constraint("Equal", 5, 9),
    Sketcher.Constraint("Equal", 7, 11),
    Sketcher.Constraint("Equal", 9, 13),
    Sketcher.Constraint("Equal", 11, 15),
    Sketcher.Constraint("Equal", 13, 17),
    Sketcher.Constraint("Equal", 15, 19),
    Sketcher.Constraint("Equal", 17, 21),
    Sketcher.Constraint("Equal", 19, 23),
    Sketcher.Constraint("Equal", 21, 25),
    Sketcher.Constraint("Equal", 23, 27),
    Sketcher.Constraint("Equal", 25, 29),
    Sketcher.Constraint("Equal", 27, 31),
    Sketcher.Constraint("Equal", 29, 33),
    Sketcher.Constraint("Equal", 31, 35),
    Sketcher.Constraint("Equal", 33, 37),
    Sketcher.Constraint("Equal", 35, 39),
    Sketcher.Constraint("Equal", 37, 41),
    Sketcher.Constraint("Equal", 39, 43),
    Sketcher.Constraint("Equal", 41, 45),
    Sketcher.Constraint("Equal", 43, 47),
    Sketcher.Constraint("Equal", 45, 49),
    Sketcher.Constraint("Equal", 47, 51),
    Sketcher.Constraint("Equal", 49, 53),
    Sketcher.Constraint("Equal", 51, 55),
    Sketcher.Constraint("PointOnObject", 0, 2, -1),
    Sketcher.Constraint("PointOnObject", 28, 2, -1),
    Sketcher.Constraint("Parallel", 2, 30),
    Sketcher.Constraint("Parallel", 4, 32),
    Sketcher.Constraint("Parallel", 6, 34),
    Sketcher.Constraint("Parallel", 8, 36),
    Sketcher.Constraint("Parallel", 10, 38),
    Sketcher.Constraint("Parallel", 12, 40),
    Sketcher.Constraint("Parallel", 14, 42),
    Sketcher.Constraint("Parallel", 16, 44),
    Sketcher.Constraint("Parallel", 18, 46),
    Sketcher.Constraint("Parallel", 20, 48),
    Sketcher.Constraint("Parallel", 22, 50),
    Sketcher.Constraint("Parallel", 24, 52),
    Sketcher.Constraint("Parallel", 26, 54),
    Sketcher.Constraint("Horizontal", 12, 2, 16, 2),
    Sketcher.Constraint("Horizontal", 15, 2, 19, 2),
    Sketcher.Constraint("Horizontal", 8, 2, 20, 2),
    Sketcher.Constraint("Horizontal", 11, 2, 23, 2),
    Sketcher.Constraint("Horizontal", 4, 2, 24, 2),
    Sketcher.Constraint("Horizontal", 7, 2, 27, 2),
    Sketcher.Constraint("Horizontal", 40, 2, 44, 2),
    Sketcher.Constraint("Horizontal", 36, 2, 48, 2),
    Sketcher.Constraint("Horizontal", 32, 2, 52, 2),
    Sketcher.Constraint("Vertical", 24, 2, 32, 2),
    Sketcher.Constraint("Vertical", 20, 2, 36, 2),
    Sketcher.Constraint("Vertical", 16, 2, 40, 2),
    Sketcher.Constraint("Radius", 1, Q("34 mm")),
    Sketcher.Constraint("Radius", 3, Q("35 mm")),
    Sketcher.Constraint("Angle", 2, Q("-12 deg")),
    Sketcher.Constraint("DistanceY", 11, 2, -1, 1, Q("27.364102 mm")),
    Sketcher.Constraint("DistanceX", -1, 1, 1, 1, Q("33.257018 mm")),
    Sketcher.Constraint("DistanceX", -1, 1, 4, 2, Q("30.632942 mm")),
    Sketcher.Constraint("DistanceY", 6, 2, -1, 1, Q("21.41035 mm")),
    Sketcher.Constraint("DistanceX", -1, 1, 7, 2, Q("31.53391 mm")),
    Sketcher.Constraint("DistanceY", 8, 2, -1, 1, Q("26.58227 mm")),
    Sketcher.Constraint("DistanceY", 9, 1, -1, 1, Q("30.408832 mm")),
    Sketcher.Constraint("DistanceX", -1, 1, 10, 2, Q("15.65596 mm")),
    Sketcher.Constraint("DistanceX", -1, 1, 12, 2, Q("7.565712 mm")),
    Sketcher.Constraint("DistanceX", -1, 1, 13, 1, Q("0.50862 mm")),
    Sketcher.Constraint("DistanceX", -1, 1, 14, 2, Q("0.523579 mm")),
    Sketcher.Constraint("DistanceY", 22, 2, -1, 1, Q("22.229052 mm")),
    Sketcher.Constraint("DistanceX", 25, 1, -1, 1, Q("33.030661 mm")),
    Sketcher.Constraint("DistanceX", 26, 2, -1, 1, Q("34.002151 mm")),
    Sketcher.Constraint("DistanceX", 29, 1, -1, 1, Q("33.257018 mm")),
    Sketcher.Constraint("DistanceY", -1, 1, 34, 2, Q("21.41035 mm")),
    Sketcher.Constraint("DistanceY", -1, 1, 37, 1, Q("30.408832 mm")),
    Sketcher.Constraint("DistanceX", 41, 1, -1, 1, Q("0.50862 mm")),
    Sketcher.Constraint("DistanceY", -1, 1, 50, 2, Q("22.229052 mm")),
    Sketcher.Constraint("DistanceX", -1, 1, 53, 1, Q("33.030661 mm")),
    Sketcher.Constraint("DistanceX", -1, 1, 5, 1, Q("26.896415 mm")),
    Sketcher.Constraint("DistanceX", -1, 1, 15, 2, Q("7.788233 mm")),
    Sketcher.Constraint("DistanceX", 17, 1, -1, 1, Q("14.292146 mm")),
    Sketcher.Constraint("DistanceX", 18, 2, -1, 1, Q("14.712503 mm")),
    Sketcher.Constraint("DistanceX", 21, 1, -1, 1, Q("26.262177 mm")),
    Sketcher.Constraint("DistanceX", -1, 1, 45, 1, Q("14.292146 mm")),
])
pocket1 = body.newObject("PartDesign::Pocket", "Pocket")
pocket1.Profile = sketch2
pocket1.Type = "ThroughAll"

# Sketch on YZ plane
sketch3 = body.newObject("Sketcher::SketchObject", "Sketch002")
sketch3.AttachmentSupport = (doc.getObject("YZ_Plane"), [""])
sketch3.MapMode = "FlatFace"
sketch3.addGeometry(Part.Circle(Vector(0, 0, 0), Vector(0, 0, 1), 1.5), False)
sketch3.addConstraint([
    Sketcher.Constraint("Coincident", 0, 3, -1, 1),
    Sketcher.Constraint("Diameter", 0, Q("3 mm")),
])
pocket2 = body.newObject("PartDesign::Pocket", "Pocket001")
pocket2.Profile = sketch3
pocket2.Type = "ThroughAll"
pocket2.Reversed = True

# Sketch on YZ plane
sketch4 = body.newObject("Sketcher::SketchObject", "Sketch003")
sketch4.AttachmentSupport = (doc.getObject("YZ_Plane"), [""])
sketch4.MapMode = "FlatFace"
sketch4.addGeometry([
    Part.LineSegment(Vector(-2.4, -3.9, 0), Vector(-2.4, 3.9, 0)),
    Part.ArcOfCircle(Part.Circle(Vector(0, 0, 0), Vector(0, 0, 1), 4.6), math.radians(58), math.radians(122)),
    Part.LineSegment(Vector(2.4, 3.9, 0), Vector(2.4, -3.9, 0)),
    Part.ArcOfCircle(Part.Circle(Vector(0, 0, 0), Vector(0, 0, 1), 4.6), math.radians(-122), math.radians(-58)),
], False)
sketch4.addConstraint([
    Sketcher.Constraint("Coincident", 0, 2, 1, 2),
    Sketcher.Constraint("Coincident", 1, 1, 2, 1),
    Sketcher.Constraint("Coincident", 2, 2, 3, 2),
    Sketcher.Constraint("Coincident", 3, 1, 0, 1),
    Sketcher.Constraint("Vertical", 0),
    Sketcher.Constraint("Vertical", 2),
    Sketcher.Constraint("Coincident", 1, 3, -1, 1),
    Sketcher.Constraint("Coincident", 3, 3, -1, 1),
    Sketcher.Constraint("Equal", 1, 3),
    Sketcher.Constraint("Horizontal", 0, 2, 1, 1),
    Sketcher.Constraint("Radius", 1, Q("4.55 mm")),
    Sketcher.Constraint("DistanceX", 0, 2, -1, 1, Q("2.4 mm")),
])
pocket3 = body.newObject("PartDesign::Pocket", "Pocket002")
pocket3.Profile = sketch4
pocket3.Length = 10
pocket3.Reversed = True

# Sketch on YZ plane
sketch5 = body.newObject("Sketcher::SketchObject", "Sketch004")
sketch5.AttachmentSupport = (doc.getObject("YZ_Plane"), [""])
sketch5.MapMode = "FlatFace"
sketch5.addGeometry([
    Part.Circle(Vector(0, 0, 0), Vector(0, 0, 1), 9.7),  # 0
    Part.ArcOfCircle(Part.Circle(Vector(0, -0.1, 0), Vector(0, 0, 1), 4.5), math.radians(-123), math.radians(-57)),  # 1
    Part.LineSegment(Vector(2.4, -3.9, 0), Vector(2.4, 3.9, 0)),  # 2
    Part.ArcOfCircle(Part.Circle(Vector(0, 0.1, 0), Vector(0, 0, 1), 4.5), math.radians(57), math.radians(123)),  # 3
    Part.LineSegment(Vector(-2.4, 3.9, 0), Vector(-2.4, -3.9, 0)),  # 4
], False)
sketch5.addConstraint([
    Sketcher.Constraint("Coincident", 1, 2, 2, 1),
    Sketcher.Constraint("Coincident", 2, 2, 3, 1),
    Sketcher.Constraint("Coincident", 3, 2, 4, 1),
    Sketcher.Constraint("Coincident", 4, 2, 1, 1),
    Sketcher.Constraint("Vertical", 2),
    Sketcher.Constraint("Vertical", 4),
    Sketcher.Constraint("Coincident", 0, 3, -1, 1),
    Sketcher.Constraint("Equal", 1, 3),
    Sketcher.Constraint("Symmetric", 1, 3, 3, 3, -1, 1),
    Sketcher.Constraint("Symmetric", 2, 2, 3, 2, -2),
    Sketcher.Constraint("Radius", 1, Q("4.45 mm")),
    Sketcher.Constraint("DistanceX", -1, 1, 1, 2, Q("2.4 mm")),
    Sketcher.Constraint("Diameter", 0, Q("19.458031 mm")),
    Sketcher.Constraint("DistanceY", 2, 1, 2, 2, Q("7.731106 mm")),
])
pad2 = body.newObject("PartDesign::Pad", "Pad001")
pad2.Profile = sketch5
pad2.Length = 3
pad2.Reversed = True

# Sketch on XZ plane
sketch6 = body.newObject("Sketcher::SketchObject", "Sketch005")
sketch6.AttachmentSupport = (doc.getObject("XZ_Plane"), [""])
sketch6.MapMode = "FlatFace"
sketch6.addGeometry(Part.Circle(Vector(-1.5, 0, 0), Vector(0, 0, 1), 0.8), False)
sketch6.addConstraint([
    Sketcher.Constraint("PointOnObject", 0, 3, -1),
    Sketcher.Constraint("Diameter", 0, Q("1.5 mm")),
    Sketcher.Constraint("DistanceX", 0, 3, -1, 1, Q("1.5 mm")),
])
pocket4 = body.newObject("PartDesign::Pocket", "Pocket003")
pocket4.Profile = sketch6
pocket4.Type = "ThroughAll"
pocket4.Midplane = True
doc.recompute()

chamfer2 = body.newObject("PartDesign::Chamfer", "Chamfer001")
chamfer2.Base = (pocket4, edges_at(pocket4, [
    (10, 19.12, 5),
    (0, -30, 0),
    (0, 19.12, -5),
    (0, 19.12, 5),
    (10, -30, 0),
    (10, 19.12, -5),
]))
chamfer2.Size = 3

doc.recompute()
